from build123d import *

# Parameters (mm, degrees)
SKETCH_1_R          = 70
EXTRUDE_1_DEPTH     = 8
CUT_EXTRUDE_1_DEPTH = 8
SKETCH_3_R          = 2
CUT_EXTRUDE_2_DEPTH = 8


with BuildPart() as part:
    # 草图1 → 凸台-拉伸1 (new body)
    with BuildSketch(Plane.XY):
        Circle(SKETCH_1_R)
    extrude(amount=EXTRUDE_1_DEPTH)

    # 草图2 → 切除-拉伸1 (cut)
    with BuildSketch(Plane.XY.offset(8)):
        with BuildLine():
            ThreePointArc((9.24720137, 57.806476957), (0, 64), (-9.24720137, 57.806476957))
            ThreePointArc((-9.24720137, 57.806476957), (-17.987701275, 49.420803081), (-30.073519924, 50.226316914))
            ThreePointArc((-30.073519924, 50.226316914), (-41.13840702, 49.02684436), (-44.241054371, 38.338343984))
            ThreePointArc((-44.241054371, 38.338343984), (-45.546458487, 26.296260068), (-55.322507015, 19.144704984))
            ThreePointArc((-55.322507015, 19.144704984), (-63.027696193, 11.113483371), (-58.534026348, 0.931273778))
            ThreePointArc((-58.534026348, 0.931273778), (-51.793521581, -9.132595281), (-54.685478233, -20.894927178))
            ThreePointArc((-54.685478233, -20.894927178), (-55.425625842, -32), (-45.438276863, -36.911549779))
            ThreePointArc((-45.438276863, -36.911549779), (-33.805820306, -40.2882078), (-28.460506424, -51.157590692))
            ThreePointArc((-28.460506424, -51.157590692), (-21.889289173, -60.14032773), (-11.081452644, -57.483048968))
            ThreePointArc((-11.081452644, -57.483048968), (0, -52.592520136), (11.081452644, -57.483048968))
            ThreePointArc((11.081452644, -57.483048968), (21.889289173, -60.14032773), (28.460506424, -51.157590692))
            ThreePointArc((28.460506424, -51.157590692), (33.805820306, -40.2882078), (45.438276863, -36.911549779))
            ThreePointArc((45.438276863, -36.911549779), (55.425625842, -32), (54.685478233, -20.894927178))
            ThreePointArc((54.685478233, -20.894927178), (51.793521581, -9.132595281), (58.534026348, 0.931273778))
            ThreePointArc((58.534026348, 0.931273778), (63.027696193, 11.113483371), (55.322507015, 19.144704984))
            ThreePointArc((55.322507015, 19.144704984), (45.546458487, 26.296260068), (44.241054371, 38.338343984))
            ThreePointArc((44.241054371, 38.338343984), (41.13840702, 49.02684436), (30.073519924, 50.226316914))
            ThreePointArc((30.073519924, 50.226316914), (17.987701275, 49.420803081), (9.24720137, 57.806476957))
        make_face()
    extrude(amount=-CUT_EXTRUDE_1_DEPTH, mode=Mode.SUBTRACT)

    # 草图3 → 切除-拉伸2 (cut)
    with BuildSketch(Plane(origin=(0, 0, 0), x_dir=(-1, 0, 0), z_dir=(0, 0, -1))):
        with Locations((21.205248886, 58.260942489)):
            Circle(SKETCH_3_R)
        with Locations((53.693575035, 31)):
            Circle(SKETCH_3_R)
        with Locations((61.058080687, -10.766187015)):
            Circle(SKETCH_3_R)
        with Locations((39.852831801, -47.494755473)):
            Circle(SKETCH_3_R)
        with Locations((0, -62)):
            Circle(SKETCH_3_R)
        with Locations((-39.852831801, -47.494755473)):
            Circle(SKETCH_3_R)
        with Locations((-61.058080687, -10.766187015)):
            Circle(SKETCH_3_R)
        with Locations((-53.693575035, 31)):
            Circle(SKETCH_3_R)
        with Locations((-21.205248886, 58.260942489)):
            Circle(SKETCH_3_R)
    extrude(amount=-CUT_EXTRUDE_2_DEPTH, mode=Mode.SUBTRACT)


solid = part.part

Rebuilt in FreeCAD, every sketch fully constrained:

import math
import FreeCAD as App
import Part
import Sketcher
from FreeCAD import Vector

doc = App.newDocument("Part")
body = doc.addObject("PartDesign::Body", "Body")

# Sketch on XY plane
sketch1 = doc.addObject("Sketcher::SketchObject", "Sketch")
body.addObject(sketch1)
sketch1.AttachmentSupport = (doc.XY_Plane, [""])
sketch1.MapMode = "FlatFace"
sketch1.addGeometry(Part.Circle(Vector(0, 0, 0), Vector(0, 0, 1), 70), False)
sketch1.addConstraint([
    Sketcher.Constraint("Coincident", 0, 3, -1, 1),
    Sketcher.Constraint("Diameter", 0, 140.0),
])
pad1 = doc.addObject("PartDesign::Pad", "Pad")
body.addObject(pad1)
pad1.Profile = sketch1
pad1.Length = 8

# Sketch on XY plane
sketch2 = doc.addObject("Sketcher::SketchObject", "Sketch001")
body.addObject(sketch2)
sketch2.AttachmentSupport = (doc.XY_Plane, [""])
sketch2.MapMode = "FlatFace"
sketch2.AttachmentOffset = App.Placement(Vector(0, 0, 8), App.Rotation())
sketch2.addGeometry([
    Part.ArcOfCircle(Part.Circle(Vector(0, 54, 0), Vector(0, 0, 1), 10), math.radians(22.373808), math.radians(157.626192)),  # 0
    Part.ArcOfCircle(Part.Circle(Vector(-23.118003, 63.516192, 0), Vector(0, 0, 1), 15), math.radians(-117.626192), math.radians(-22.373808)),  # 1
    Part.ArcOfCircle(Part.Circle(Vector(-34.710531, 41.3664, 0), Vector(0, 0, 1), 10), math.radians(62.373808), math.radians(197.626192)),  # 2
    Part.ArcOfCircle(Part.Circle(Vector(-58.53684, 33.79626, 0), Vector(0, 0, 1), 15), math.radians(-77.626192), math.radians(17.626192)),  # 3
    Part.ArcOfCircle(Part.Circle(Vector(-53.179619, 9.377002, 0), Vector(0, 0, 1), 10), math.radians(102.373808), math.radians(237.626192)),  # 4
    Part.ArcOfCircle(Part.Circle(Vector(-66.565638, -11.737318, 0), Vector(0, 0, 1), 15), math.radians(-37.626192), math.radians(57.626192)),  # 5
    Part.ArcOfCircle(Part.Circle(Vector(-46.765372, -27, 0), Vector(0, 0, 1), 10), math.radians(142.373808), math.radians(277.626192)),  # 6
    Part.ArcOfCircle(Part.Circle(Vector(-43.447634, -51.778874, 0), Vector(0, 0, 1), 15), math.radians(2.373808), math.radians(97.626192)),  # 7
    Part.ArcOfCircle(Part.Circle(Vector(-18.469088, -50.743402, 0), Vector(0, 0, 1), 10), math.radians(-177.626192), math.radians(-42.373808)),  # 8
    Part.ArcOfCircle(Part.Circle(Vector(0, -67.59252, 0), Vector(0, 0, 1), 15), math.radians(42.373808), math.radians(137.626192)),  # 9
    Part.ArcOfCircle(Part.Circle(Vector(18.469088, -50.743402, 0), Vector(0, 0, 1), 10), math.radians(-137.626192), math.radians(-2.373808)),  # 10
    Part.ArcOfCircle(Part.Circle(Vector(43.447634, -51.778874, 0), Vector(0, 0, 1), 15), math.radians(82.373808), math.radians(177.626192)),  # 11
    Part.ArcOfCircle(Part.Circle(Vector(46.765372, -27, 0), Vector(0, 0, 1), 10), math.radians(-97.626192), math.radians(37.626192)),  # 12
    Part.ArcOfCircle(Part.Circle(Vector(66.565638, -11.737318, 0), Vector(0, 0, 1), 15), math.radians(122.373808), math.radians(217.626192)),  # 13
    Part.ArcOfCircle(Part.Circle(Vector(53.179619, 9.377002, 0), Vector(0, 0, 1), 10), math.radians(-57.626192), math.radians(77.626192)),  # 14
    Part.ArcOfCircle(Part.Circle(Vector(58.53684, 33.79626, 0), Vector(0, 0, 1), 15), math.radians(162.373808), math.radians(257.626192)),  # 15
    Part.ArcOfCircle(Part.Circle(Vector(34.710531, 41.3664, 0), Vector(0, 0, 1), 10), math.radians(-17.626192), math.radians(117.626192)),  # 16
    Part.ArcOfCircle(Part.Circle(Vector(23.118003, 63.516192, 0), Vector(0, 0, 1), 15), math.radians(-157.626192), math.radians(-62.373808)),  # 17
], False)
sketch2.addConstraint([
    Sketcher.Constraint("Coincident", 0, 2, 1, 2),
    Sketcher.Constraint("Coincident", 1, 1, 2, 1),
    Sketcher.Constraint("Coincident", 2, 2, 3, 2),
    Sketcher.Constraint("Coincident", 3, 1, 4, 1),
    Sketcher.Constraint("Coincident", 4, 2, 5, 2),
    Sketcher.Constraint("Coincident", 5, 1, 6, 1),
    Sketcher.Constraint("Coincident", 6, 2, 7, 2),
    Sketcher.Constraint("Coincident", 7, 1, 8, 1),
    Sketcher.Constraint("Coincident", 8, 2, 9, 2),
    Sketcher.Constraint("Coincident", 9, 1, 10, 1),
    Sketcher.Constraint("Coincident", 10, 2, 11, 2),
    Sketcher.Constraint("Coincident", 11, 1, 12, 1),
    Sketcher.Constraint("Coincident", 12, 2, 13, 2),
    Sketcher.Constraint("Coincident", 13, 1, 14, 1),
    Sketcher.Constraint("Coincident", 14, 2, 15, 2),
    Sketcher.Constraint("Coincident", 15, 1, 16, 1),
    Sketcher.Constraint("Coincident", 16, 2, 17, 2),
    Sketcher.Constraint("Coincident", 17, 1, 0, 1),
    Sketcher.Constraint("PointOnObject", 0, 3, -2),
    Sketcher.Constraint("PointOnObject", 9, 3, -2),
    Sketcher.Constraint("Radius", 0, 10.0),
    Sketcher.Constraint("Radius", 1, 15.0),
    Sketcher.Constraint("Radius", 2, 10.0),
    Sketcher.Constraint("Radius", 3, 15.0),
    Sketcher.Constraint("Radius", 4, 10.0),
    Sketcher.Constraint("Radius", 5, 15.0),
    Sketcher.Constraint("Radius", 6, 10.0),
    Sketcher.Constraint("Radius", 7, 15.0),
    Sketcher.Constraint("Radius", 8, 10.0),
    Sketcher.Constraint("Radius", 9, 15.0),
    Sketcher.Constraint("Radius", 10, 10.0),
    Sketcher.Constraint("Radius", 11, 15.0),
    Sketcher.Constraint("Radius", 12, 10.0),
    Sketcher.Constraint("Radius", 13, 15.0),
    Sketcher.Constraint("Radius", 14, 10.0),
    Sketcher.Constraint("Radius", 15, 15.0),
    Sketcher.Constraint("Radius", 16, 10.0),
    Sketcher.Constraint("Radius", 17, 15.0),
    Sketcher.Constraint("DistanceY", -1, 1, 0, 3, 54.0),
    Sketcher.Constraint("DistanceY", 6, 3, -1, 1, 27.0),
    Sketcher.Constraint("DistanceY", 12, 3, -1, 1, 27.0),
    Sketcher.Constraint("DistanceY", -1, 1, 4, 3, 9.377002),
    Sketcher.Constraint("DistanceY", -1, 1, 14, 3, 9.377002),
    Sketcher.Constraint("DistanceY", -1, 1, 2, 3, 41.3664),
    Sketcher.Constraint("DistanceY", 8, 3, -1, 1, 50.743402),
    Sketcher.Constraint("DistanceY", 10, 3, -1, 1, 50.743402),
    Sketcher.Constraint("DistanceY", -1, 1, 16, 3, 41.3664),
    Sketcher.Constraint("DistanceX", 0, 2, -1, 1, 9.247201),
    Sketcher.Constraint("DistanceX", -1, 1, 17, 1, 9.247201),
    Sketcher.Constraint("DistanceX", 5, 3, 3, 3, 8.028798),
    Sketcher.Constraint("DistanceX", 15, 3, 13, 3, 8.028798),
    Sketcher.Constraint("DistanceY", 5, 1, 4, 2, 21.826201),
    Sketcher.Constraint("DistanceX", 5, 1, 6, 2, 9.247201),
    Sketcher.Constraint("DistanceX", 11, 1, 12, 2, 9.247201),
    Sketcher.Constraint("DistanceY", 12, 2, 13, 1, 21.826201),
    Sketcher.Constraint("DistanceX", 2, 3, -1, 1, 34.710531),
    Sketcher.Constraint("DistanceX", 3, 3, -1, 1, 58.53684),
    Sketcher.Constraint("DistanceY", 9, 3, -1, 1, 67.59252),
    Sketcher.Constraint("DistanceX", -1, 1, 12, 3, 46.765372),
    Sketcher.Constraint("DistanceX", -1, 1, 14, 3, 53.179619),
    Sketcher.Constraint("DistanceX", 1, 1, -1, 1, 30.07352),
    Sketcher.Constraint("DistanceX", 5, 1, -1, 1, 54.685478),
    Sketcher.Constraint("DistanceY", 7, 1, -1, 1, 51.157591),
    Sketcher.Constraint("DistanceY", 8, 2, -1, 1, 57.483049),
    Sketcher.Constraint("DistanceY", 9, 1, -1, 1, 57.483049),
    Sketcher.Constraint("DistanceY", 10, 2, -1, 1, 51.157591),
    Sketcher.Constraint("DistanceY", 11, 1, -1, 1, 36.91155),
    Sketcher.Constraint("DistanceX", -1, 1, 16, 2, 30.07352),
    Sketcher.Constraint("DistanceX", 2, 2, 1, 3, 21.123051),
    Sketcher.Constraint("DistanceX", 3, 1, 4, 3, 2.142888),
    Sketcher.Constraint("DistanceX", 14, 3, 14, 2, 2.142888),
    Sketcher.Constraint("DistanceY", 14, 2, 15, 1, 19.193639),
])
pocket1 = doc.addObject("PartDesign::Pocket", "Pocket")
body.addObject(pocket1)
pocket1.Profile = sketch2
pocket1.Length = 8

# Sketch on XY plane
sketch3 = doc.addObject("Sketcher::SketchObject", "Sketch002")
body.addObject(sketch3)
sketch3.AttachmentSupport = (doc.XY_Plane, [""])
sketch3.MapMode = "FlatFace"
sketch3.addGeometry([
    Part.Circle(Vector(-21.205249, 58.260942, 0), Vector(0, 0, 1), 2),  # 0
    Part.Circle(Vector(-53.693575, 31, 0), Vector(0, 0, 1), 2),  # 1
    Part.Circle(Vector(-61.058081, -10.766187, 0), Vector(0, 0, 1), 2),  # 2
    Part.Circle(Vector(-39.852832, -47.494755, 0), Vector(0, 0, 1), 2),  # 3
    Part.Circle(Vector(0, -62, 0), Vector(0, 0, 1), 2),  # 4
    Part.Circle(Vector(39.852832, -47.494755, 0), Vector(0, 0, 1), 2),  # 5
    Part.Circle(Vector(61.058081, -10.766187, 0), Vector(0, 0, 1), 2),  # 6
    Part.Circle(Vector(53.693575, 31, 0), Vector(0, 0, 1), 2),  # 7
    Part.Circle(Vector(21.205249, 58.260942, 0), Vector(0, 0, 1), 2),  # 8
], False)
sketch3.addConstraint([
    Sketcher.Constraint("Equal", 0, 1),
    Sketcher.Constraint("Equal", 1, 2),
    Sketcher.Constraint("Equal", 2, 3),
    Sketcher.Constraint("Equal", 3, 4),
    Sketcher.Constraint("Equal", 4, 5),
    Sketcher.Constraint("Equal", 5, 6),
    Sketcher.Constraint("Equal", 6, 7),
    Sketcher.Constraint("Equal", 7, 8),
    Sketcher.Constraint("Symmetric", 3, 3, 5, 3, -2),
    Sketcher.Constraint("Symmetric", 2, 3, 6, 3, -2),
    Sketcher.Constraint("Symmetric", 1, 3, 7, 3, -2),
    Sketcher.Constraint("Symmetric", 0, 3, 8, 3, -2),
    Sketcher.Constraint("PointOnObject", 4, 3, -2),
    Sketcher.Constraint("Diameter", 0, 4.0),
    Sketcher.Constraint("DistanceY", -1, 1, 1, 3, 31.0),
    Sketcher.Constraint("DistanceY", 4, 3, -1, 1, 62.0),
    Sketcher.Constraint("DistanceX", 0, 3, -1, 1, 21.205249),
    Sketcher.Constraint("DistanceX", 2, 3, -1, 1, 61.058081),
    Sketcher.Constraint("DistanceX", 3, 3, -1, 1, 39.852832),
    Sketcher.Constraint("DistanceY", 2, 3, 0, 3, 69.02713),
    Sketcher.Constraint("DistanceY", 3, 3, 2, 3, 36.728568),
    Sketcher.Constraint("DistanceX", 1, 3, 7, 3, 107.38715),
    Sketcher.Constraint("DistanceY", -1, 1, 0, 3, 58.260942),
])
pocket2 = doc.addObject("PartDesign::Pocket", "Pocket001")
body.addObject(pocket2)
pocket2.Profile = sketch3
pocket2.Length = 8
pocket2.Reversed = True

doc.recompute()
